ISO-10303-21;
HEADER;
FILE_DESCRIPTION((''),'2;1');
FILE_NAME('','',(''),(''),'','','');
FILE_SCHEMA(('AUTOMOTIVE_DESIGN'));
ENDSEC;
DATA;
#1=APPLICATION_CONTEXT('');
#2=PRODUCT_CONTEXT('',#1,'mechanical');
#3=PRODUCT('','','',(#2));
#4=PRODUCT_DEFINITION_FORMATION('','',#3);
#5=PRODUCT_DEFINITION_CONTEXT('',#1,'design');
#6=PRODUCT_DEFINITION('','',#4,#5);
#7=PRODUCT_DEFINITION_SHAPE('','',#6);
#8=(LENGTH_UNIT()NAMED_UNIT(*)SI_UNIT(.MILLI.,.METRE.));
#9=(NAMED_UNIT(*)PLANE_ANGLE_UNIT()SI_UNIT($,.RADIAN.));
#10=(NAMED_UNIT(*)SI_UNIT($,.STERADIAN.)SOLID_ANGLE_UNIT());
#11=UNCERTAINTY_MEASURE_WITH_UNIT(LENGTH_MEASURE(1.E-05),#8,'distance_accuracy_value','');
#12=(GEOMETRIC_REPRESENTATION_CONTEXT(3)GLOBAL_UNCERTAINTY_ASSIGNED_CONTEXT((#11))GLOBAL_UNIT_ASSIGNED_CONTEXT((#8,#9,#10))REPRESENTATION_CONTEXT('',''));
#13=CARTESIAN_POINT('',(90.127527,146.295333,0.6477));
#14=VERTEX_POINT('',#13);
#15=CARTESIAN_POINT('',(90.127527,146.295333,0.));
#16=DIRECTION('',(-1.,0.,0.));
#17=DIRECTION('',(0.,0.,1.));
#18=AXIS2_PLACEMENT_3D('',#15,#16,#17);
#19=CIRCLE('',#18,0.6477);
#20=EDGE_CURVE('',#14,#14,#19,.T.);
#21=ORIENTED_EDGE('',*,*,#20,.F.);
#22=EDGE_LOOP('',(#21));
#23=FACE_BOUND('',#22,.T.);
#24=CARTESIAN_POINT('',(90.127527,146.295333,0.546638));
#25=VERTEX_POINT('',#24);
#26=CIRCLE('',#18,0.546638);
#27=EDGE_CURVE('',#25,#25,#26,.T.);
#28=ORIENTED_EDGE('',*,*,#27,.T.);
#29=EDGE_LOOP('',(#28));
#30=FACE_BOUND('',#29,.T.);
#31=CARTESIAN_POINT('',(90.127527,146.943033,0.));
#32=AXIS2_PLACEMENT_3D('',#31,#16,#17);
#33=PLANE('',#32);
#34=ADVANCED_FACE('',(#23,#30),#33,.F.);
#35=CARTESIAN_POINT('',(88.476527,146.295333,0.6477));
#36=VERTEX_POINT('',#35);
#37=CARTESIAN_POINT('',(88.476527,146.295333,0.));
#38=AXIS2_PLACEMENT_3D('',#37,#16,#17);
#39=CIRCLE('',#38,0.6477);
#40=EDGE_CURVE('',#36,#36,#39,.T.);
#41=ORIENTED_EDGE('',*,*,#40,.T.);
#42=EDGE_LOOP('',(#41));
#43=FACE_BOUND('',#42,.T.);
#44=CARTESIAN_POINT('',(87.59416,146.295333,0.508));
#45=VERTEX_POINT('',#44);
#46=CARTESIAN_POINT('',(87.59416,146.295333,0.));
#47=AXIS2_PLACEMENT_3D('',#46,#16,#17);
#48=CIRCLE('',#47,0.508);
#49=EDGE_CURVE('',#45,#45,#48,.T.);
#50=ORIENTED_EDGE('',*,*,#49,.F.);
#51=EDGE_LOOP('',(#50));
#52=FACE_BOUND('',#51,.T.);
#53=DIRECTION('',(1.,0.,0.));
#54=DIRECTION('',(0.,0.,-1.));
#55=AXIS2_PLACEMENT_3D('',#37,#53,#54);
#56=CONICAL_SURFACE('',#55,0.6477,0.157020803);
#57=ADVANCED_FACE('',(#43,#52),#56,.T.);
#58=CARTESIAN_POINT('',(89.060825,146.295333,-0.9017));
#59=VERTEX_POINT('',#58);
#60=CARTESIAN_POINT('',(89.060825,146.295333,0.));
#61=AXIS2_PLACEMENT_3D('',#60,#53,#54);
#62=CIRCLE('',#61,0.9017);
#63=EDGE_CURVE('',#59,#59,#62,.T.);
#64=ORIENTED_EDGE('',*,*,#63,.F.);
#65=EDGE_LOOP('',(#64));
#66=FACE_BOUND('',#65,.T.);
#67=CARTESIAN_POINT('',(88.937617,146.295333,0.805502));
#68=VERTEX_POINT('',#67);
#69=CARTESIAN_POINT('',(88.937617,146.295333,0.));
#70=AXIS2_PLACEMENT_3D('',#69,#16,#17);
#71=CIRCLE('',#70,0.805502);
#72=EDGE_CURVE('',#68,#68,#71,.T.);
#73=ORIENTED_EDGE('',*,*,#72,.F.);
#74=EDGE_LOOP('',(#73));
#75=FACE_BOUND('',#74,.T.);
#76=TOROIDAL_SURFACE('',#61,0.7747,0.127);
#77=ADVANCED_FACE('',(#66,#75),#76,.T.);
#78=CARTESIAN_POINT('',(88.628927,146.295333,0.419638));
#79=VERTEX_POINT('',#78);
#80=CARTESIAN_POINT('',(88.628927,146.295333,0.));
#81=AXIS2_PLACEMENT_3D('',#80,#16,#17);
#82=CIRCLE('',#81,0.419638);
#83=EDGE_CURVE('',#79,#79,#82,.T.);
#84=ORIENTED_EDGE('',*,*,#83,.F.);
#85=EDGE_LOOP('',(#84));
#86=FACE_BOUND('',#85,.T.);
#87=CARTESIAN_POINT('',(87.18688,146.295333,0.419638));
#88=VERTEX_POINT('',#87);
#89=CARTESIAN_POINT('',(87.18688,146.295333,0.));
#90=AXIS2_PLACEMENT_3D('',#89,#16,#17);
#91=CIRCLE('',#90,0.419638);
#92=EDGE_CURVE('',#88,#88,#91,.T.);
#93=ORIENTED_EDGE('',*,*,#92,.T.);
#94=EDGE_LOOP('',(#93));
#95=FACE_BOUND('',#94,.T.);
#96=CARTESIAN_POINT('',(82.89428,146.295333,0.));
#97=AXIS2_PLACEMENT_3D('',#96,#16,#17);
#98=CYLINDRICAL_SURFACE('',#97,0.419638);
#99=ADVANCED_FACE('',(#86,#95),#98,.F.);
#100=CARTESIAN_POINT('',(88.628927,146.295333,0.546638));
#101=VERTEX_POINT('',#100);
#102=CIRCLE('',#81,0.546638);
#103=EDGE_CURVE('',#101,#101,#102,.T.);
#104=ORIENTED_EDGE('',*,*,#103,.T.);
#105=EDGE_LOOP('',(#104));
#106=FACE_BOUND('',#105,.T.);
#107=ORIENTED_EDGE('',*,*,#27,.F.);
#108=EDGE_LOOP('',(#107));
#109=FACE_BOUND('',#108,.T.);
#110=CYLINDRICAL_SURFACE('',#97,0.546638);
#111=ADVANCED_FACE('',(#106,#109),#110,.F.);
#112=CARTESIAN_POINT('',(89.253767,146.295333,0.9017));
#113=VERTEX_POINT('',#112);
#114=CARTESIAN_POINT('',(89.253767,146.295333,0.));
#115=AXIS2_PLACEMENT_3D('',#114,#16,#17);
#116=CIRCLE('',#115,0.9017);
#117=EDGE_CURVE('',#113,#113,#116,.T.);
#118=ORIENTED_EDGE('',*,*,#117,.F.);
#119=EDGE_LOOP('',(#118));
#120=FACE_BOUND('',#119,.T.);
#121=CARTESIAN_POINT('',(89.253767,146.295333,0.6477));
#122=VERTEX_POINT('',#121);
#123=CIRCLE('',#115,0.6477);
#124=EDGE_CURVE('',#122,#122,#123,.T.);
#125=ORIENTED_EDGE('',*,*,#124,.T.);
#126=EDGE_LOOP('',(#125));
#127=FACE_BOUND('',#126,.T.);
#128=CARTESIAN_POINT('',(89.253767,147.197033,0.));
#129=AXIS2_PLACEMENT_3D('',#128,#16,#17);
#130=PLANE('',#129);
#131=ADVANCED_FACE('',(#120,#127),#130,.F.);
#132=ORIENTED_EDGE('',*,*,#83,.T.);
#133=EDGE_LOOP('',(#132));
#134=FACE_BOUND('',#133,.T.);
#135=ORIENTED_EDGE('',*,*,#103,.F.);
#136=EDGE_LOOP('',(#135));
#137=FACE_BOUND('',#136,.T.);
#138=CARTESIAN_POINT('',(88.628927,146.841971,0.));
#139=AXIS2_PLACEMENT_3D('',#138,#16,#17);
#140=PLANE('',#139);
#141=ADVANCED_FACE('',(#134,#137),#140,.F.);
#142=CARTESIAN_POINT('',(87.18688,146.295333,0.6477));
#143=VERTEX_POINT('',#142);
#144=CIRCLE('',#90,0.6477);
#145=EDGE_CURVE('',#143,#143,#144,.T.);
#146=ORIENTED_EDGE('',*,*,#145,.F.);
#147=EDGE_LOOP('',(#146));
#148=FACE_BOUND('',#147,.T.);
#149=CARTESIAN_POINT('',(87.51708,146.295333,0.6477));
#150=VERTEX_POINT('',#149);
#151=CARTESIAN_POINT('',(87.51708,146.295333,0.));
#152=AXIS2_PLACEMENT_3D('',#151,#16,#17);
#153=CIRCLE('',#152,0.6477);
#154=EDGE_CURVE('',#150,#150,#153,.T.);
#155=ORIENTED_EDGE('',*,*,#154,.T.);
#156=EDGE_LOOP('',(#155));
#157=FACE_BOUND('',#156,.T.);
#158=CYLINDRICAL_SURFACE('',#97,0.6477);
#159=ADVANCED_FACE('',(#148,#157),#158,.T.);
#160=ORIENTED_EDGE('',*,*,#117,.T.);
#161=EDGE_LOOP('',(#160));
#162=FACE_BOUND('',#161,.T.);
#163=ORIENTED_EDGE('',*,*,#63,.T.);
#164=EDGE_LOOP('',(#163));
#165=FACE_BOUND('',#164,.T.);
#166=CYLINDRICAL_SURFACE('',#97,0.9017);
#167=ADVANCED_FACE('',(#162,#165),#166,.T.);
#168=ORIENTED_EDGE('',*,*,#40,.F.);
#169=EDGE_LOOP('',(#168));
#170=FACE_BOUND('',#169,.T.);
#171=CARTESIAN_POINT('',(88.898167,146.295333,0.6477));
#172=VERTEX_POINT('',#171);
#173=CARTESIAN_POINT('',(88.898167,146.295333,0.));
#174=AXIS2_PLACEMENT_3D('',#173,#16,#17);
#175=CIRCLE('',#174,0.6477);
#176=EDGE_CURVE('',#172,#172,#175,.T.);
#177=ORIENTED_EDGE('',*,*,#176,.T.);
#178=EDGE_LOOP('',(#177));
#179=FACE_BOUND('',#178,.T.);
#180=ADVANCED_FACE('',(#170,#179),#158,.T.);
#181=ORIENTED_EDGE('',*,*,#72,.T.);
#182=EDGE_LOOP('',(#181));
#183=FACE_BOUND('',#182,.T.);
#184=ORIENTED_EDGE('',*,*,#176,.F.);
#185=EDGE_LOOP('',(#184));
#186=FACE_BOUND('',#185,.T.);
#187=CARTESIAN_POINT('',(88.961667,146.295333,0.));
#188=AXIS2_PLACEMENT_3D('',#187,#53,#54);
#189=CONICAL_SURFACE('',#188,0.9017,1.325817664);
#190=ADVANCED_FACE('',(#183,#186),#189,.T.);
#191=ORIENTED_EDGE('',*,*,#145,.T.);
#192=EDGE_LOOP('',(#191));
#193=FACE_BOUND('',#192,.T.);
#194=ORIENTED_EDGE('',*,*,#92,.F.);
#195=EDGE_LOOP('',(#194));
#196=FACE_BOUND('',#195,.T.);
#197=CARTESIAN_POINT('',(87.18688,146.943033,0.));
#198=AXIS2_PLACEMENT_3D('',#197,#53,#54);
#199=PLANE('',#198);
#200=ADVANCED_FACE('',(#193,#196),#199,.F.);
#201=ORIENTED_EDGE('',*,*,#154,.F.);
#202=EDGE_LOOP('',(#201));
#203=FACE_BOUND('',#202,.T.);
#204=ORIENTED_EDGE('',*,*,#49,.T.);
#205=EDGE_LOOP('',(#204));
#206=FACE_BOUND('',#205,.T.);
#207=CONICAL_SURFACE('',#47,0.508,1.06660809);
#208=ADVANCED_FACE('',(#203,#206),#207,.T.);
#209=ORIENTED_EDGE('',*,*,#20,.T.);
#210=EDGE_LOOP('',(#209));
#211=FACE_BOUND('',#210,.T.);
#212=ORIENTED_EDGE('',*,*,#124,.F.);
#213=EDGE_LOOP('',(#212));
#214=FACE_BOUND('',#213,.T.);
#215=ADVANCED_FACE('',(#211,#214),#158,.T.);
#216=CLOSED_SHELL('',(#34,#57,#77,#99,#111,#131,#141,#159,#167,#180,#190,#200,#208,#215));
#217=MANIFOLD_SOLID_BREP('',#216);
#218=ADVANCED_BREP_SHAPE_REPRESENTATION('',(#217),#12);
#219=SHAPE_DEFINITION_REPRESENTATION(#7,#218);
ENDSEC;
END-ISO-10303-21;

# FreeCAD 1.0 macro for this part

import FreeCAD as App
import Part
import Sketcher
from FreeCAD import Vector
Q = App.Units.Quantity


def edges_at(feature, points):
    """Names of the edges that pass closest to the given points."""
    edges = feature.Shape.Edges
    near = lambda p: min(range(len(edges)), key=lambda i: edges[i].distToShape(Part.Vertex(*p))[0])
    return sorted({f"Edge{near(p) + 1}" for p in points})

doc = App.newDocument("Part")
body = doc.addObject("PartDesign::Body", "Body")

# Sketch on XY plane
sketch1 = body.newObject("Sketcher::SketchObject", "Sketch")
sketch1.AttachmentSupport = (doc.getObject("XY_Plane"), [""])
sketch1.MapMode = "FlatFace"
sketch1.addGeometry(Part.LineSegment(Vector(88.9, 146.94, 0), Vector(88.48, 146.94, 0)), False)
sketch1.addGeometry(Part.LineSegment(Vector(88.48, 146.94, 0), Vector(87.59, 146.8, 0)), False)
sketch1.addGeometry(Part.LineSegment(Vector(87.59, 146.8, 0), Vector(87.52, 146.94, 0)), False)
sketch1.addGeometry(Part.LineSegment(Vector(87.52, 146.94, 0), Vector(87.19, 146.94, 0)), False)
sketch1.addGeometry(Part.LineSegment(Vector(87.19, 146.94, 0), Vector(87.19, 146.71, 0)), False)
sketch1.addGeometry(Part.LineSegment(Vector(87.19, 146.71, 0), Vector(88.63, 146.71, 0)), False)
sketch1.addGeometry(Part.LineSegment(Vector(88.63, 146.71, 0), Vector(88.63, 146.84, 0)), False)
sketch1.addGeometry(Part.LineSegment(Vector(88.63, 146.84, 0), Vector(90.13, 146.84, 0)), False)
sketch1.addGeometry(Part.LineSegment(Vector(90.13, 146.84, 0), Vector(90.13, 146.94, 0)), False)
sketch1.addGeometry(Part.LineSegment(Vector(90.13, 146.94, 0), Vector(89.25, 146.94, 0)), False)
sketch1.addGeometry(Part.LineSegment(Vector(89.25, 146.94, 0), Vector(89.25, 147.2, 0)), False)
sketch1.addGeometry(Part.LineSegment(Vector(89.25, 147.2, 0), Vector(88.96, 147.2, 0)), False)
sketch1.addGeometry(Part.LineSegment(Vector(88.96, 147.2, 0), Vector(88.9, 146.94, 0)), False)
sketch1.addGeometry(Part.LineSegment(Vector(87.19, 146.3, 0), Vector(90.13, 146.3, 0)), True)  # axis
sketch1.addConstraint(Sketcher.Constraint("Coincident", 0, 2, 1, 1))
sketch1.addConstraint(Sketcher.Constraint("Coincident", 1, 2, 2, 1))
sketch1.addConstraint(Sketcher.Constraint("Coincident", 2, 2, 3, 1))
sketch1.addConstraint(Sketcher.Constraint("Coincident", 3, 2, 4, 1))
sketch1.addConstraint(Sketcher.Constraint("Coincident", 4, 2, 5, 1))
sketch1.addConstraint(Sketcher.Constraint("Coincident", 5, 2, 6, 1))
sketch1.addConstraint(Sketcher.Constraint("Coincident", 6, 2, 7, 1))
sketch1.addConstraint(Sketcher.Constraint("Coincident", 7, 2, 8, 1))
sketch1.addConstraint(Sketcher.Constraint("Coincident", 8, 2, 9, 1))
sketch1.addConstraint(Sketcher.Constraint("Coincident", 9, 2, 10, 1))
sketch1.addConstraint(Sketcher.Constraint("Coincident", 10, 2, 11, 1))
sketch1.addConstraint(Sketcher.Constraint("Coincident", 11, 2, 12, 1))
sketch1.addConstraint(Sketcher.Constraint("Coincident", 12, 2, 0, 1))
sketch1.addConstraint(Sketcher.Constraint("Horizontal", 0))
sketch1.addConstraint(Sketcher.Constraint("Horizontal", 3))
sketch1.addConstraint(Sketcher.Constraint("Vertical", 4))
sketch1.addConstraint(Sketcher.Constraint("Horizontal", 5))
sketch1.addConstraint(Sketcher.Constraint("Vertical", 6))
sketch1.addConstraint(Sketcher.Constraint("Horizontal", 7))
sketch1.addConstraint(Sketcher.Constraint("Vertical", 8))
sketch1.addConstraint(Sketcher.Constraint("Horizontal", 9))
sketch1.addConstraint(Sketcher.Constraint("Vertical", 10))
sketch1.addConstraint(Sketcher.Constraint("Horizontal", 11))
sketch1.addConstraint(Sketcher.Constraint("Horizontal", 13))
sketch1.addConstraint(Sketcher.Constraint("Horizontal", 0, 2, 2, 2))
sketch1.addConstraint(Sketcher.Constraint("Horizontal", 3, 2, 8, 2))
sketch1.addConstraint(Sketcher.Constraint("Vertical", 4, 2, 13, 1))
sketch1.addConstraint(Sketcher.Constraint("Vertical", 8, 2, 13, 2))
sketch1.addConstraint(Sketcher.Constraint("DistanceY", 10, 1, 10, 2, Q("0.01 in")))
sketch1.addConstraint(Sketcher.Constraint("DistanceX", 3, 2, 3, 1, Q("0.013 in")))
sketch1.addConstraint(Sketcher.Constraint("DistanceX", 7, 1, 7, 2, Q("0.059 in")))
sketch1.addConstraint(Sketcher.Constraint("DistanceY", 6, 1, 6, 2, Q("0.005 in")))
sketch1.addConstraint(Sketcher.Constraint("DistanceY", 13, 1, 1, 2, Q("0.02 in")))
sketch1.addConstraint(Sketcher.Constraint("DistanceX", 0, 2, 0, 1, Q("0.0166 in")))
sketch1.addConstraint(Sketcher.Constraint("DistanceX", 9, 2, 9, 1, Q("0.0344 in")))
sketch1.addConstraint(Sketcher.Constraint("DistanceX", 11, 2, 11, 1, Q("0.0115 in")))
sketch1.addConstraint(Sketcher.Constraint("DistanceX", 0, 2, 5, 2, Q("0.006 in")))
sketch1.addConstraint(Sketcher.Constraint("DistanceY", 1, 2, 0, 2, Q("0.0055 in")))
sketch1.addConstraint(Sketcher.Constraint("DistanceY", 4, 2, 4, 1, 0.228062))
sketch1.addConstraint(Sketcher.Constraint("DistanceX", 5, 1, 5, 2, 1.442047))
sketch1.addConstraint(Sketcher.Constraint("DistanceX", -1, 1, 1, 2, 87.59416))
sketch1.addConstraint(Sketcher.Constraint("DistanceX", -1, 1, 2, 2, 87.51708))
sketch1.addConstraint(Sketcher.Constraint("DistanceY", -1, 1, 4, 2, 146.714971))
revolution = body.newObject("PartDesign::Revolution", "Revolution")
revolution.Profile = sketch1
revolution.ReferenceAxis = (sketch1, ["Axis0"])
revolution.Angle = 360
doc.recompute()

fillet = body.newObject("PartDesign::Fillet", "Fillet")
fillet.Base = (revolution, edges_at(revolution, [(88.962, 146.295, -0.902)]))
fillet.Radius = Q("0.005 in")

doc.recompute()
